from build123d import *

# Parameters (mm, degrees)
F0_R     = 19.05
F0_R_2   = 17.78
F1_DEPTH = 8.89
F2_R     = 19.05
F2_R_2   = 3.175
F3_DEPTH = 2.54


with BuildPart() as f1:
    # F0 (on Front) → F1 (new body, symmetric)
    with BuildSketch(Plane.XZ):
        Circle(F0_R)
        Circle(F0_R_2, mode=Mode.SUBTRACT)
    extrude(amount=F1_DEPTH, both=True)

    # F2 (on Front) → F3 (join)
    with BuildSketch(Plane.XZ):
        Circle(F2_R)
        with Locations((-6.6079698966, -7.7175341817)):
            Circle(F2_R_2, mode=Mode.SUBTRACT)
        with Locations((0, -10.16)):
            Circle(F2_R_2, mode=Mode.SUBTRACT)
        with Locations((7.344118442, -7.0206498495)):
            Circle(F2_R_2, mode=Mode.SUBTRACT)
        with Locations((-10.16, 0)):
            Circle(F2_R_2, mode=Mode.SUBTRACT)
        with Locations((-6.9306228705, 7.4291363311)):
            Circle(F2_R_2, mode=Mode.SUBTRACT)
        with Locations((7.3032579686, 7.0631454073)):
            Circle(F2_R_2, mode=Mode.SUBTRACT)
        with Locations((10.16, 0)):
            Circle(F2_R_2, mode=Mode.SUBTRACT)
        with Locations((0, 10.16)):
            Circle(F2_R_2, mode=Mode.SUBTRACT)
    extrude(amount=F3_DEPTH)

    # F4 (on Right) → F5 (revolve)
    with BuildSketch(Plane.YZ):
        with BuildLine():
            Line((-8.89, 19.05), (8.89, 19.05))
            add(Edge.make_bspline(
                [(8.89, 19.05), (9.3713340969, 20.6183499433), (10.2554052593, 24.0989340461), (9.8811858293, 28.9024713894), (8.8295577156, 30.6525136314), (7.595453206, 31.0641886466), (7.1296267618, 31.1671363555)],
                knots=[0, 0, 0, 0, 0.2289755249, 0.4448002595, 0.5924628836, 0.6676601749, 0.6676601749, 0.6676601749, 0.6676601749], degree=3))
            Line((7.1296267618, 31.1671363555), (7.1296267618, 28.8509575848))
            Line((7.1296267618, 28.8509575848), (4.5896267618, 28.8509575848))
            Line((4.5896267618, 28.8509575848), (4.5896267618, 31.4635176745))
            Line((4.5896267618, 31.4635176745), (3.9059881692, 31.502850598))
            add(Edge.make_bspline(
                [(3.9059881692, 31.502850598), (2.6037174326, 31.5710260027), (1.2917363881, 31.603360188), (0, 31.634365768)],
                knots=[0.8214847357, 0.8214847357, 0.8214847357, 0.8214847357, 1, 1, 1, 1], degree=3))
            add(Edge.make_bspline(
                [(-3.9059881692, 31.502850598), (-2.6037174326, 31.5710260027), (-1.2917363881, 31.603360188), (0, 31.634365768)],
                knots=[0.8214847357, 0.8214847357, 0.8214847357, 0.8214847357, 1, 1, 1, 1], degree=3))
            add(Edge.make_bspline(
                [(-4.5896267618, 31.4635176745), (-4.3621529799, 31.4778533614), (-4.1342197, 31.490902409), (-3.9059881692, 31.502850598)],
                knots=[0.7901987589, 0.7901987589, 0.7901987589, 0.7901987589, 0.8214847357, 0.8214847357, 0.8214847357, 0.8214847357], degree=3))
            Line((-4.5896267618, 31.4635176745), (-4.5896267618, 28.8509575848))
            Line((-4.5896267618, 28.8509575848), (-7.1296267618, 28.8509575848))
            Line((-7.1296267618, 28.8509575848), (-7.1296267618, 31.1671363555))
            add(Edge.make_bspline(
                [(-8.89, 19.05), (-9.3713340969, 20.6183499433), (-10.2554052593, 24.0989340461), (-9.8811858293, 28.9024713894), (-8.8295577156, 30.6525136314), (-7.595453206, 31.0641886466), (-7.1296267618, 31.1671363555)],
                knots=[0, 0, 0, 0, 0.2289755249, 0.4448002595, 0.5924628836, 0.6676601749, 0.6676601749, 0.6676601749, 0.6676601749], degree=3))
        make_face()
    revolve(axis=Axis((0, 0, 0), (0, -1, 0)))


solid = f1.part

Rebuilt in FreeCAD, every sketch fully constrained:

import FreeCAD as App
import Part
import Sketcher
Q = App.Units.Quantity

doc = App.newDocument("Part")
body = doc.addObject("PartDesign::Body", "Body")

# Sketch on XZ plane
sketch1 = body.newObject("Sketcher::SketchObject", "Sketch")
sketch1.AttachmentSupport = (doc.getObject("XZ_Plane"), [""])
sketch1.MapMode = "FlatFace"
sketch1.addGeometry([
    Part.Circle(App.Vector(0, 0, 0), App.Vector(0, 0, 1), 19.05),
    Part.Circle(App.Vector(0, 0, 0), App.Vector(0, 0, 1), 17.78),
], False)
sketch1.addConstraint([
    Sketcher.Constraint("Coincident", 0, 3, -1, 1),
    Sketcher.Constraint("Coincident", 1, 3, -1, 1),
    Sketcher.Constraint("Diameter", 0, Q("1.5 in")),
    Sketcher.Constraint("Diameter", 1, Q("1.4 in")),
])
pad1 = body.newObject("PartDesign::Pad", "Pad")
pad1.Profile = sketch1
pad1.Length = Q("0.7 in")
pad1.Midplane = True

# Sketch on XZ plane
sketch2 = body.newObject("Sketcher::SketchObject", "Sketch001")
sketch2.AttachmentSupport = (doc.getObject("XZ_Plane"), [""])
sketch2.MapMode = "FlatFace"
sketch2.addGeometry([
    Part.Circle(App.Vector(0, 0, 0), App.Vector(0, 0, 1), 19.05),  # 0
    Part.Circle(App.Vector(0, -10.16, 0), App.Vector(0, 0, 1), 3.175),  # 1
    Part.Circle(App.Vector(-6.60797, -7.717534, 0), App.Vector(0, 0, 1), 3.175),  # 2
    Part.Circle(App.Vector(-10.16, 0, 0), App.Vector(0, 0, 1), 3.175),  # 3
    Part.Circle(App.Vector(7.344118, -7.02065, 0), App.Vector(0, 0, 1), 3.175),  # 4
    Part.Circle(App.Vector(10.16, 0, 0), App.Vector(0, 0, 1), 3.175),  # 5
    Part.Circle(App.Vector(-6.930623, 7.429136, 0), App.Vector(0, 0, 1), 3.175),  # 6
    Part.Circle(App.Vector(0, 10.16, 0), App.Vector(0, 0, 1), 3.175),  # 7
    Part.Circle(App.Vector(7.303258, 7.063145, 0), App.Vector(0, 0, 1), 3.175),  # 8
], False)
sketch2.addConstraint([
    Sketcher.Constraint("Coincident", 0, 3, -1, 1),
    Sketcher.Constraint("Equal", 1, 2),
    Sketcher.Constraint("Equal", 2, 3),
    Sketcher.Constraint("Equal", 3, 4),
    Sketcher.Constraint("Equal", 4, 5),
    Sketcher.Constraint("Equal", 5, 6),
    Sketcher.Constraint("Equal", 6, 7),
    Sketcher.Constraint("Equal", 7, 8),
    Sketcher.Constraint("Symmetric", 3, 3, 5, 3, -1, 1),
    Sketcher.Constraint("Symmetric", 1, 3, 7, 3, -1, 1),
    Sketcher.Constraint("PointOnObject", 1, 3, -2),
    Sketcher.Constraint("PointOnObject", 3, 3, -1),
    Sketcher.Constraint("Diameter", 0, Q("1.5 in")),
    Sketcher.Constraint("Diameter", 1, Q("0.25 in")),
    Sketcher.Constraint("DistanceY", 1, 3, -1, 1, Q("0.4 in")),
    Sketcher.Constraint("DistanceX", 3, 3, -1, 1, Q("0.4 in")),
    Sketcher.Constraint("DistanceX", 2, 3, -1, 1, 6.60797),
    Sketcher.Constraint("DistanceX", -1, 1, 4, 3, 7.344118),
    Sketcher.Constraint("DistanceY", 4, 3, -1, 1, 7.02065),
    Sketcher.Constraint("DistanceY", 2, 3, 6, 3, 15.146671),
    Sketcher.Constraint("DistanceX", 8, 3, 4, 3, 0.04086),
    Sketcher.Constraint("DistanceX", 6, 3, 8, 3, 14.233881),
    Sketcher.Constraint("DistanceY", 8, 3, 6, 3, 0.365991),
    Sketcher.Constraint("DistanceY", 2, 3, -1, 1, 7.717534),
])
pad2 = body.newObject("PartDesign::Pad", "Pad001")
pad2.Profile = sketch2
pad2.Length = Q("0.1 in")

# Sketch on YZ plane
sketch3 = body.newObject("Sketcher::SketchObject", "Sketch002")
sketch3.AttachmentSupport = (doc.getObject("YZ_Plane"), [""])
sketch3.MapMode = "FlatFace"
sketch3.addGeometry([
    Part.LineSegment(App.Vector(-8.89, 19.05, 0), App.Vector(8.89, 19.05, 0)),  # 0
    Part.BSplineCurve([App.Vector(8.89, 19.05, 0), App.Vector(9.371334, 20.61835, 0), App.Vector(10.255405, 24.098934, 0), App.Vector(9.881186, 28.902471, 0), App.Vector(8.829558, 30.652514, 0), App.Vector(7.595453, 31.064189, 0), App.Vector(7.129627, 31.167136, 0)], [4, 1, 1, 1, 4], [0, 0.228975525, 0.44480026, 0.592462884, 0.667660175], False, 3, [1, 1, 1, 1, 1, 1, 1], False),  # 1
    Part.LineSegment(App.Vector(7.129627, 31.167136, 0), App.Vector(7.129627, 28.850958, 0)),  # 2
    Part.LineSegment(App.Vector(7.129627, 28.850958, 0), App.Vector(4.589627, 28.850958, 0)),  # 3
    Part.LineSegment(App.Vector(4.589627, 28.850958, 0), App.Vector(4.589627, 31.463518, 0)),  # 4
    Part.LineSegment(App.Vector(4.589627, 31.463518, 0), App.Vector(3.905988, 31.502851, 0)),  # 5
    Part.BSplineCurve([App.Vector(3.905988, 31.502851, 0), App.Vector(2.603717, 31.571026, 0), App.Vector(1.291736, 31.60336, 0), App.Vector(0, 31.634366, 0)], [4, 4], [0.821484736, 1], False, 3, [1, 1, 1, 1], False),  # 6
    Part.BSplineCurve([App.Vector(-3.905988, 31.502851, 0), App.Vector(-2.603717, 31.571026, 0), App.Vector(-1.291736, 31.60336, 0), App.Vector(0, 31.634366, 0)], [4, 4], [0.821484736, 1], False, 3, [1, 1, 1, 1], False),  # 7
    Part.BSplineCurve([App.Vector(-4.589627, 31.463518, 0), App.Vector(-4.362153, 31.477853, 0), App.Vector(-4.13422, 31.490902, 0), App.Vector(-3.905988, 31.502851, 0)], [4, 4], [0.790198759, 0.821484736], False, 3, [1, 1, 1, 1], False),  # 8
    Part.LineSegment(App.Vector(-4.589627, 31.463518, 0), App.Vector(-4.589627, 28.850958, 0)),  # 9
    Part.LineSegment(App.Vector(-4.589627, 28.850958, 0), App.Vector(-7.129627, 28.850958, 0)),  # 10
    Part.LineSegment(App.Vector(-7.129627, 28.850958, 0), App.Vector(-7.129627, 31.167136, 0)),  # 11
    Part.BSplineCurve([App.Vector(-8.89, 19.05, 0), App.Vector(-9.371334, 20.61835, 0), App.Vector(-10.255405, 24.098934, 0), App.Vector(-9.881186, 28.902471, 0), App.Vector(-8.829558, 30.652514, 0), App.Vector(-7.595453, 31.064189, 0), App.Vector(-7.129627, 31.167136, 0)], [4, 1, 1, 1, 4], [0, 0.228975525, 0.44480026, 0.592462884, 0.667660175], False, 3, [1, 1, 1, 1, 1, 1, 1], False),  # 12
], False)
sketch3.addConstraint([
    Sketcher.Constraint("Block", 1),
    Sketcher.Constraint("Block", 6),
    Sketcher.Constraint("Block", 7),
    Sketcher.Constraint("Block", 8),
    Sketcher.Constraint("Block", 12),
    Sketcher.Constraint("Coincident", 0, 2, 1, 1),
    Sketcher.Constraint("Coincident", 1, 2, 2, 1),
    Sketcher.Constraint("Coincident", 2, 2, 3, 1),
    Sketcher.Constraint("Coincident", 3, 2, 4, 1),
    Sketcher.Constraint("Coincident", 4, 2, 5, 1),
    Sketcher.Constraint("Coincident", 5, 2, 6, 1),
    Sketcher.Constraint("Coincident", 8, 1, 9, 1),
    Sketcher.Constraint("Coincident", 9, 2, 10, 1),
    Sketcher.Constraint("Coincident", 10, 2, 11, 1),
    Sketcher.Constraint("Coincident", 11, 2, 12, 2),
    Sketcher.Constraint("Coincident", 12, 1, 0, 1),
    Sketcher.Constraint("Vertical", 2),
    Sketcher.Constraint("Horizontal", 3),
    Sketcher.Constraint("Vertical", 4),
    Sketcher.Constraint("Vertical", 9),
    Sketcher.Constraint("Horizontal", 10),
    Sketcher.Constraint("Vertical", 11),
    Sketcher.Constraint("Symmetric", 3, 2, 9, 2, -2),
    Sketcher.Constraint("Equal", 4, 9),
    Sketcher.Constraint("DistanceY", 2, 2, 2, 1, 2.316179),
])
revolution = body.newObject("PartDesign::Revolution", "Revolution")
revolution.Profile = sketch3
revolution.ReferenceAxis = (sketch3, ["H_Axis"])
revolution.Angle = 360

doc.recompute()
